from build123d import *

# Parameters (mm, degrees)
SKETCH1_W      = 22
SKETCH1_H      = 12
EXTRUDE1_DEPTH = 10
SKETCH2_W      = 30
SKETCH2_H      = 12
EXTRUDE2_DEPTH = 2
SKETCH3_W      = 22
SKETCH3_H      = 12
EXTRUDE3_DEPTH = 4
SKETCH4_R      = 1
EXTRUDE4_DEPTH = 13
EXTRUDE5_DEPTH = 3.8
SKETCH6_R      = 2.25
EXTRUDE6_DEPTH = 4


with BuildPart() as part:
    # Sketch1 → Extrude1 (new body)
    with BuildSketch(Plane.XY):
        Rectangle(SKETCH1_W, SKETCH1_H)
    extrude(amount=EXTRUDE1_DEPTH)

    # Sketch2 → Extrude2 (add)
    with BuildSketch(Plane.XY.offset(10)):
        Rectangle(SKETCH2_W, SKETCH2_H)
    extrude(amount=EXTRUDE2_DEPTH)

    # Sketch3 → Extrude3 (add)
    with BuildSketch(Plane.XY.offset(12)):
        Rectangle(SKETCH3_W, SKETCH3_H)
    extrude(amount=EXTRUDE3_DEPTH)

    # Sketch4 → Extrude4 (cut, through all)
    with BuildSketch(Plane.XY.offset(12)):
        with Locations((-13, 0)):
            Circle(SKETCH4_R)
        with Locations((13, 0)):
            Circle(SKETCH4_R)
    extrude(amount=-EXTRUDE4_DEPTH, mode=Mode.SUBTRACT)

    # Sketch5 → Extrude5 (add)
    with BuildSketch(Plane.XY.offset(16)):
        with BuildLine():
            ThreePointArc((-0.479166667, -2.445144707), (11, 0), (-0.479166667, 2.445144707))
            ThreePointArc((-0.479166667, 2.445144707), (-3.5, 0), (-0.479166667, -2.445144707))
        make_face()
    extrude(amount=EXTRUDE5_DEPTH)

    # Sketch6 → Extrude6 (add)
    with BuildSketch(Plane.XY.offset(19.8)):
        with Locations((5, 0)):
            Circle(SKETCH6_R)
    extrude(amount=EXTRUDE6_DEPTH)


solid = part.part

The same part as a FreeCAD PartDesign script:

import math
import FreeCAD as App
import Part
import Sketcher

V = App.Vector
Q = App.Units.Quantity

doc = App.newDocument("Part")
body = doc.addObject("PartDesign::Body", "Body")

sketch1 = doc.addObject("Sketcher::SketchObject", "Sketch")
body.addObject(sketch1)
sketch1.AttachmentSupport = (doc.XY_Plane, [""])
sketch1.MapMode = "FlatFace"
sketch1.addGeometry(Part.LineSegment(V(-11, 6, 0), V(-11, -6, 0)), False)
sketch1.addGeometry(Part.LineSegment(V(-11, -6, 0), V(11, -6, 0)), False)
sketch1.addGeometry(Part.LineSegment(V(11, -6, 0), V(11, 6, 0)), False)
sketch1.addGeometry(Part.LineSegment(V(11, 6, 0), V(-11, 6, 0)), False)
sketch1.addConstraint(Sketcher.Constraint("Coincident", 0, 2, 1, 1))
sketch1.addConstraint(Sketcher.Constraint("Coincident", 1, 2, 2, 1))
sketch1.addConstraint(Sketcher.Constraint("Coincident", 2, 2, 3, 1))
sketch1.addConstraint(Sketcher.Constraint("Coincident", 3, 2, 0, 1))
sketch1.addConstraint(Sketcher.Constraint("Vertical", 0))
sketch1.addConstraint(Sketcher.Constraint("Horizontal", 1))
sketch1.addConstraint(Sketcher.Constraint("Vertical", 2))
sketch1.addConstraint(Sketcher.Constraint("Horizontal", 3))
sketch1.addConstraint(Sketcher.Constraint("Symmetric", 0, 2, 2, 2, -1, 1))
sketch1.addConstraint(Sketcher.Constraint("DistanceX", 1, 1, 1, 2, Q("22 mm")))
sketch1.addConstraint(Sketcher.Constraint("DistanceY", 0, 2, 0, 1, Q("12 mm")))
pad1 = doc.addObject("PartDesign::Pad", "Pad")
body.addObject(pad1)
pad1.Profile = sketch1
pad1.Length = 10

sketch2 = doc.addObject("Sketcher::SketchObject", "Sketch001")
body.addObject(sketch2)
sketch2.AttachmentSupport = (doc.XY_Plane, [""])
sketch2.MapMode = "FlatFace"
sketch2.AttachmentOffset = App.Placement(V(0, 0, 10), App.Rotation())
sketch2.addGeometry(Part.LineSegment(V(-15, 6, 0), V(-15, -6, 0)), False)
sketch2.addGeometry(Part.LineSegment(V(-15, -6, 0), V(15, -6, 0)), False)
sketch2.addGeometry(Part.LineSegment(V(15, -6, 0), V(15, 6, 0)), False)
sketch2.addGeometry(Part.LineSegment(V(15, 6, 0), V(-15, 6, 0)), False)
sketch2.addConstraint(Sketcher.Constraint("Coincident", 0, 2, 1, 1))
sketch2.addConstraint(Sketcher.Constraint("Coincident", 1, 2, 2, 1))
sketch2.addConstraint(Sketcher.Constraint("Coincident", 2, 2, 3, 1))
sketch2.addConstraint(Sketcher.Constraint("Coincident", 3, 2, 0, 1))
sketch2.addConstraint(Sketcher.Constraint("Vertical", 0))
sketch2.addConstraint(Sketcher.Constraint("Horizontal", 1))
sketch2.addConstraint(Sketcher.Constraint("Vertical", 2))
sketch2.addConstraint(Sketcher.Constraint("Horizontal", 3))
sketch2.addConstraint(Sketcher.Constraint("Symmetric", 0, 2, 2, 2, -1, 1))
sketch2.addConstraint(Sketcher.Constraint("DistanceX", 1, 1, 1, 2, Q("30 mm")))
sketch2.addConstraint(Sketcher.Constraint("DistanceY", 0, 2, 0, 1, Q("12 mm")))
pad2 = doc.addObject("PartDesign::Pad", "Pad001")
body.addObject(pad2)
pad2.Profile = sketch2
pad2.Length = 2

sketch3 = doc.addObject("Sketcher::SketchObject", "Sketch002")
body.addObject(sketch3)
sketch3.AttachmentSupport = (doc.XY_Plane, [""])
sketch3.MapMode = "FlatFace"
sketch3.AttachmentOffset = App.Placement(V(0, 0, 12), App.Rotation())
sketch3.addGeometry(Part.LineSegment(V(-11, 6, 0), V(-11, -6, 0)), False)
sketch3.addGeometry(Part.LineSegment(V(-11, -6, 0), V(11, -6, 0)), False)
sketch3.addGeometry(Part.LineSegment(V(11, -6, 0), V(11, 6, 0)), False)
sketch3.addGeometry(Part.LineSegment(V(11, 6, 0), V(-11, 6, 0)), False)
sketch3.addConstraint(Sketcher.Constraint("Coincident", 0, 2, 1, 1))
sketch3.addConstraint(Sketcher.Constraint("Coincident", 1, 2, 2, 1))
sketch3.addConstraint(Sketcher.Constraint("Coincident", 2, 2, 3, 1))
sketch3.addConstraint(Sketcher.Constraint("Coincident", 3, 2, 0, 1))
sketch3.addConstraint(Sketcher.Constraint("Vertical", 0))
sketch3.addConstraint(Sketcher.Constraint("Horizontal", 1))
sketch3.addConstraint(Sketcher.Constraint("Vertical", 2))
sketch3.addConstraint(Sketcher.Constraint("Horizontal", 3))
sketch3.addConstraint(Sketcher.Constraint("Symmetric", 0, 2, 2, 2, -1, 1))
sketch3.addConstraint(Sketcher.Constraint("DistanceX", 1, 1, 1, 2, Q("22 mm")))
sketch3.addConstraint(Sketcher.Constraint("DistanceY", 0, 2, 0, 1, Q("12 mm")))
pad3 = doc.addObject("PartDesign::Pad", "Pad002")
body.addObject(pad3)
pad3.Profile = sketch3
pad3.Length = 4

sketch4 = doc.addObject("Sketcher::SketchObject", "Sketch003")
body.addObject(sketch4)
sketch4.AttachmentSupport = (doc.XY_Plane, [""])
sketch4.MapMode = "FlatFace"
sketch4.AttachmentOffset = App.Placement(V(0, 0, 12), App.Rotation())
sketch4.addGeometry(Part.Circle(V(-13, 0, 0), V(0, 0, 1), 1), False)
sketch4.addGeometry(Part.Circle(V(13, 0, 0), V(0, 0, 1), 1), False)
sketch4.addConstraint(Sketcher.Constraint("Equal", 0, 1))
sketch4.addConstraint(Sketcher.Constraint("Symmetric", 0, 3, 1, 3, -1, 1))
sketch4.addConstraint(Sketcher.Constraint("PointOnObject", 0, 3, -1))
sketch4.addConstraint(Sketcher.Constraint("Diameter", 0, Q("2 mm")))
sketch4.addConstraint(Sketcher.Constraint("DistanceX", 0, 3, -1, 1, Q("13 mm")))
pocket1 = doc.addObject("PartDesign::Pocket", "Pocket")
body.addObject(pocket1)
pocket1.Profile = sketch4
pocket1.Type = "ThroughAll"

sketch5 = doc.addObject("Sketcher::SketchObject", "Sketch004")
body.addObject(sketch5)
sketch5.AttachmentSupport = (doc.XY_Plane, [""])
sketch5.MapMode = "FlatFace"
sketch5.AttachmentOffset = App.Placement(V(0, 0, 16), App.Rotation())
sketch5.addGeometry(Part.ArcOfCircle(Part.Circle(V(5, 0, 0), V(0, 0, 1), 6), math.radians(-156), math.radians(156)), False)
sketch5.addGeometry(Part.ArcOfCircle(Part.Circle(V(-1, 0, 0), V(0, 0, 1), 2.5), math.radians(78), math.radians(282)), False)
sketch5.addConstraint(Sketcher.Constraint("Coincident", 0, 1, 1, 2))
sketch5.addConstraint(Sketcher.Constraint("Coincident", 1, 1, 0, 2))
sketch5.addConstraint(Sketcher.Constraint("Symmetric", 0, 1, 1, 1, -1))
sketch5.addConstraint(Sketcher.Constraint("Radius", 0, Q("6 mm")))
sketch5.addConstraint(Sketcher.Constraint("Radius", 1, Q("2.5 mm")))
sketch5.addConstraint(Sketcher.Constraint("DistanceX", -1, 1, 0, 3, Q("5 mm")))
sketch5.addConstraint(Sketcher.Constraint("DistanceX", 1, 3, -1, 1, Q("1 mm")))
pad4 = doc.addObject("PartDesign::Pad", "Pad003")
body.addObject(pad4)
pad4.Profile = sketch5
pad4.Length = 3.8

sketch6 = doc.addObject("Sketcher::SketchObject", "Sketch005")
body.addObject(sketch6)
sketch6.AttachmentSupport = (doc.XY_Plane, [""])
sketch6.MapMode = "FlatFace"
sketch6.AttachmentOffset = App.Placement(V(0, 0, 19.8), App.Rotation())
sketch6.addGeometry(Part.Circle(V(5, 0, 0), V(0, 0, 1), 2.2), False)
sketch6.addConstraint(Sketcher.Constraint("PointOnObject", 0, 3, -1))
sketch6.addConstraint(Sketcher.Constraint("Diameter", 0, Q("4.5 mm")))
sketch6.addConstraint(Sketcher.Constraint("DistanceX", -1, 1, 0, 3, Q("5 mm")))
pad5 = doc.addObject("PartDesign::Pad", "Pad004")
body.addObject(pad5)
pad5.Profile = sketch6
pad5.Length = 4

doc.recompute()
